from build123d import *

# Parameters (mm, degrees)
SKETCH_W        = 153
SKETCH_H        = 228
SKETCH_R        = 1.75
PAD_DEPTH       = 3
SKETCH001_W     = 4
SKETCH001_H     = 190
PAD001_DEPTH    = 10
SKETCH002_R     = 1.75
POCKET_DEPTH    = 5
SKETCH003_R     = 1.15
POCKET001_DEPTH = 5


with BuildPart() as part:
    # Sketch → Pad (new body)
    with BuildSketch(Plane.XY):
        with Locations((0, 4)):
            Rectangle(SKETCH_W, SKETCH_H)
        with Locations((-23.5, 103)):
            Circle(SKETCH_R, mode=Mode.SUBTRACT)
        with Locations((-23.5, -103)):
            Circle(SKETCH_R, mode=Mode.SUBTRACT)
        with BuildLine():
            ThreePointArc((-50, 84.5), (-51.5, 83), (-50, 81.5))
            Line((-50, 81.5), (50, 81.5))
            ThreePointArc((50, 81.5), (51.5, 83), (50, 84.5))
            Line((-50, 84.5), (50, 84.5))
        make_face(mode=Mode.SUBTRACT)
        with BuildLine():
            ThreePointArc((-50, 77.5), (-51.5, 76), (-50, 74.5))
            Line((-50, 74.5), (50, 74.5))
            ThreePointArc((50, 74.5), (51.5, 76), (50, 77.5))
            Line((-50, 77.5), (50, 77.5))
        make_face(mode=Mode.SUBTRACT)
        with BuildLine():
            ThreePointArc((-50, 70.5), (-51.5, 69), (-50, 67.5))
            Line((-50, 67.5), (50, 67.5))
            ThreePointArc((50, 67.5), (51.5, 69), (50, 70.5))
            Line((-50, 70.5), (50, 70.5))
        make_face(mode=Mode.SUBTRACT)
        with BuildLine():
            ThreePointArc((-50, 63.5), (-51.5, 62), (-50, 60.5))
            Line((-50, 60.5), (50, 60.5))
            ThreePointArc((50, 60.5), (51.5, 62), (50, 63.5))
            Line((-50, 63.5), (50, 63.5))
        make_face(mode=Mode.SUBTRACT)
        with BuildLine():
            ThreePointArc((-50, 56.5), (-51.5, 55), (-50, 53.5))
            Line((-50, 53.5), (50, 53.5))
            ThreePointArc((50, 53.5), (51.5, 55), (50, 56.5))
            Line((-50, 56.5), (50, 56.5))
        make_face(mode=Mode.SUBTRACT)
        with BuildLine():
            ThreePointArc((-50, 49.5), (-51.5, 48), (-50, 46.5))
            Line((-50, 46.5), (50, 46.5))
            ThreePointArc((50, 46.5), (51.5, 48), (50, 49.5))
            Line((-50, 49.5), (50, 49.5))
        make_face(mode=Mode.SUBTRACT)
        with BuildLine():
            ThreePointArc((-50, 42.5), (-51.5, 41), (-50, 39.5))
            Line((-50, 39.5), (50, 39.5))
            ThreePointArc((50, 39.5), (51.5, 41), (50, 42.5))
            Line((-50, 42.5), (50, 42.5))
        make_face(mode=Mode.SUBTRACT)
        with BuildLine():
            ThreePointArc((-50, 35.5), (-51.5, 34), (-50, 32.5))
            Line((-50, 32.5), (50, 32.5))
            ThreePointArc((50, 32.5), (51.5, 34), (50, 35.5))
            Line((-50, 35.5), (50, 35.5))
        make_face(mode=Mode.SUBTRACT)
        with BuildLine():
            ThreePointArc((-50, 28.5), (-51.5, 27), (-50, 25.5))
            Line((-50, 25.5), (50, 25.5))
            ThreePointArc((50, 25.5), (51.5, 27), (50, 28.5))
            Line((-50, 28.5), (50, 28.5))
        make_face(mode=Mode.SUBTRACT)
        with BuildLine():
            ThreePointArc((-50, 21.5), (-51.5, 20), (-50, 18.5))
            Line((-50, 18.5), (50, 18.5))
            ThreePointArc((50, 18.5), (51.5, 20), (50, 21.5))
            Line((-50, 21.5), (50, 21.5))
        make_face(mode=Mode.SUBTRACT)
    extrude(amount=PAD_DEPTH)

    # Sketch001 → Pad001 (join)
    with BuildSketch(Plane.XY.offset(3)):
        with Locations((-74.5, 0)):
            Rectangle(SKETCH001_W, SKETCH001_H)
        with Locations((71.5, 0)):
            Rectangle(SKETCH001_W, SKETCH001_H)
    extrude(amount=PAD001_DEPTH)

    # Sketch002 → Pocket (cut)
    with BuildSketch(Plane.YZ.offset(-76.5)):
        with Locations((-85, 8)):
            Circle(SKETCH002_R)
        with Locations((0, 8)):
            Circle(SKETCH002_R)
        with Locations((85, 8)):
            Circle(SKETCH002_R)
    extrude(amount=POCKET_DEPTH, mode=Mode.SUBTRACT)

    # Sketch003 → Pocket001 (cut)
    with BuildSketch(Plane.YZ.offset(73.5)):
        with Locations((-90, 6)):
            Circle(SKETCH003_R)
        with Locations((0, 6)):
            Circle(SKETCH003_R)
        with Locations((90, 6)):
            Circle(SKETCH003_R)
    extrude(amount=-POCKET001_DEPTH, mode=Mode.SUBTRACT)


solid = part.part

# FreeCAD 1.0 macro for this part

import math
import FreeCAD as App
import Part
import Sketcher

doc = App.newDocument("Part")
params = doc.addObject("Spreadsheet::Sheet", "Params")
for row, (alias, value) in enumerate([
    ("sketch1_diameter", "3.5 mm"),
    ("sketch1_radius", "1.5 mm"),
    ("sketch1_width", "153 mm"),
    ("sketch1_width2", "100 mm"),
    ("sketch1_height", "228 mm"),
    ("pad1_length", "3 mm"),
    ("sketch2_width", "4 mm"),
    ("sketch2_height", "190 mm"),
    ("pad2_length", "10 mm"),
    ("sketch3_diameter", "3.5 mm"),
    ("pocket1_length", "5 mm"),
    ("sketch4_diameter", "2.3 mm"),
    ("pocket2_length", "5 mm"),
], start=1):
    params.set(f"A{row}", alias)
    params.set(f"B{row}", "=" + value)
    params.setAlias(f"B{row}", alias)

body = doc.addObject("PartDesign::Body", "Body")

# Sketch on XY plane
sketch1 = doc.addObject("Sketcher::SketchObject", "Sketch")
body.addObject(sketch1)
sketch1.AttachmentSupport = (doc.XY_Plane, [""])
sketch1.MapMode = "FlatFace"
sketch1.addGeometry(Part.LineSegment(App.Vector(-76.5, 118, 0), App.Vector(-76.5, -110, 0)), False)
sketch1.addGeometry(Part.LineSegment(App.Vector(-76.5, -110, 0), App.Vector(76.5, -110, 0)), False)
sketch1.addGeometry(Part.LineSegment(App.Vector(76.5, -110, 0), App.Vector(76.5, 118, 0)), False)
sketch1.addGeometry(Part.LineSegment(App.Vector(76.5, 118, 0), App.Vector(-76.5, 118, 0)), False)
sketch1.addGeometry(Part.Circle(App.Vector(-23.5, -103, 0), App.Vector(0, 0, 1), 1.8), False)
sketch1.addGeometry(Part.ArcOfCircle(Part.Circle(App.Vector(-50, 20, 0), App.Vector(0, 0, 1), 1.5), math.radians(90), math.radians(270)), False)
sketch1.addGeometry(Part.LineSegment(App.Vector(-50, 21.5, 0), App.Vector(50, 21.5, 0)), False)
sketch1.addGeometry(Part.ArcOfCircle(Part.Circle(App.Vector(50, 20, 0), App.Vector(0, 0, 1), 1.5), math.radians(-90), math.radians(90)), False)
sketch1.addGeometry(Part.LineSegment(App.Vector(50, 18.5, 0), App.Vector(-50, 18.5, 0)), False)
sketch1.addGeometry(Part.ArcOfCircle(Part.Circle(App.Vector(-50, 27, 0), App.Vector(0, 0, 1), 1.5), math.radians(90), math.radians(270)), False)
sketch1.addGeometry(Part.LineSegment(App.Vector(-50, 28.5, 0), App.Vector(50, 28.5, 0)), False)
sketch1.addGeometry(Part.ArcOfCircle(Part.Circle(App.Vector(50, 27, 0), App.Vector(0, 0, 1), 1.5), math.radians(-90), math.radians(90)), False)
sketch1.addGeometry(Part.LineSegment(App.Vector(50, 25.5, 0), App.Vector(-50, 25.5, 0)), False)
sketch1.addGeometry(Part.ArcOfCircle(Part.Circle(App.Vector(-50, 34, 0), App.Vector(0, 0, 1), 1.5), math.radians(90), math.radians(270)), False)
sketch1.addGeometry(Part.LineSegment(App.Vector(-50, 35.5, 0), App.Vector(50, 35.5, 0)), False)
sketch1.addGeometry(Part.ArcOfCircle(Part.Circle(App.Vector(50, 34, 0), App.Vector(0, 0, 1), 1.5), math.radians(-90), math.radians(90)), False)
sketch1.addGeometry(Part.LineSegment(App.Vector(50, 32.5, 0), App.Vector(-50, 32.5, 0)), False)
sketch1.addGeometry(Part.ArcOfCircle(Part.Circle(App.Vector(-50, 41, 0), App.Vector(0, 0, 1), 1.5), math.radians(90), math.radians(270)), False)
sketch1.addGeometry(Part.LineSegment(App.Vector(-50, 42.5, 0), App.Vector(50, 42.5, 0)), False)
sketch1.addGeometry(Part.ArcOfCircle(Part.Circle(App.Vector(50, 41, 0), App.Vector(0, 0, 1), 1.5), math.radians(-90), math.radians(90)), False)
sketch1.addGeometry(Part.LineSegment(App.Vector(50, 39.5, 0), App.Vector(-50, 39.5, 0)), False)
sketch1.addGeometry(Part.ArcOfCircle(Part.Circle(App.Vector(-50, 48, 0), App.Vector(0, 0, 1), 1.5), math.radians(90), math.radians(270)), False)
sketch1.addGeometry(Part.LineSegment(App.Vector(-50, 49.5, 0), App.Vector(50, 49.5, 0)), False)
sketch1.addGeometry(Part.ArcOfCircle(Part.Circle(App.Vector(50, 48, 0), App.Vector(0, 0, 1), 1.5), math.radians(-90), math.radians(90)), False)
sketch1.addGeometry(Part.LineSegment(App.Vector(50, 46.5, 0), App.Vector(-50, 46.5, 0)), False)
sketch1.addGeometry(Part.ArcOfCircle(Part.Circle(App.Vector(-50, 55, 0), App.Vector(0, 0, 1), 1.5), math.radians(90), math.radians(270)), False)
sketch1.addGeometry(Part.LineSegment(App.Vector(-50, 56.5, 0), App.Vector(50, 56.5, 0)), False)
sketch1.addGeometry(Part.ArcOfCircle(Part.Circle(App.Vector(50, 55, 0), App.Vector(0, 0, 1), 1.5), math.radians(-90), math.radians(90)), False)
sketch1.addGeometry(Part.LineSegment(App.Vector(50, 53.5, 0), App.Vector(-50, 53.5, 0)), False)
sketch1.addGeometry(Part.ArcOfCircle(Part.Circle(App.Vector(-50, 62, 0), App.Vector(0, 0, 1), 1.5), math.radians(90), math.radians(270)), False)
sketch1.addGeometry(Part.LineSegment(App.Vector(-50, 63.5, 0), App.Vector(50, 63.5, 0)), False)
sketch1.addGeometry(Part.ArcOfCircle(Part.Circle(App.Vector(50, 62, 0), App.Vector(0, 0, 1), 1.5), math.radians(-90), math.radians(90)), False)
sketch1.addGeometry(Part.LineSegment(App.Vector(50, 60.5, 0), App.Vector(-50, 60.5, 0)), False)
sketch1.addGeometry(Part.ArcOfCircle(Part.Circle(App.Vector(-50, 69, 0), App.Vector(0, 0, 1), 1.5), math.radians(90), math.radians(270)), False)
sketch1.addGeometry(Part.LineSegment(App.Vector(-50, 70.5, 0), App.Vector(50, 70.5, 0)), False)
sketch1.addGeometry(Part.ArcOfCircle(Part.Circle(App.Vector(50, 69, 0), App.Vector(0, 0, 1), 1.5), math.radians(-90), math.radians(90)), False)
sketch1.addGeometry(Part.LineSegment(App.Vector(50, 67.5, 0), App.Vector(-50, 67.5, 0)), False)
sketch1.addGeometry(Part.ArcOfCircle(Part.Circle(App.Vector(-50, 76, 0), App.Vector(0, 0, 1), 1.5), math.radians(90), math.radians(270)), False)
sketch1.addGeometry(Part.LineSegment(App.Vector(-50, 77.5, 0), App.Vector(50, 77.5, 0)), False)
sketch1.addGeometry(Part.ArcOfCircle(Part.Circle(App.Vector(50, 76, 0), App.Vector(0, 0, 1), 1.5), math.radians(-90), math.radians(90)), False)
sketch1.addGeometry(Part.LineSegment(App.Vector(50, 74.5, 0), App.Vector(-50, 74.5, 0)), False)
sketch1.addGeometry(Part.Circle(App.Vector(-23.5, 103, 0), App.Vector(0, 0, 1), 1.8), False)
sketch1.addGeometry(Part.ArcOfCircle(Part.Circle(App.Vector(-50, 83, 0), App.Vector(0, 0, 1), 1.5), math.radians(90), math.radians(270)), False)
sketch1.addGeometry(Part.LineSegment(App.Vector(-50, 84.5, 0), App.Vector(50, 84.5, 0)), False)
sketch1.addGeometry(Part.ArcOfCircle(Part.Circle(App.Vector(50, 83, 0), App.Vector(0, 0, 1), 1.5), math.radians(-90), math.radians(90)), False)
sketch1.addGeometry(Part.LineSegment(App.Vector(50, 81.5, 0), App.Vector(-50, 81.5, 0)), False)
sketch1.addConstraint(Sketcher.Constraint("Coincident", 0, 2, 1, 1))
sketch1.addConstraint(Sketcher.Constraint("Coincident", 1, 2, 2, 1))
sketch1.addConstraint(Sketcher.Constraint("Coincident", 2, 2, 3, 1))
sketch1.addConstraint(Sketcher.Constraint("Coincident", 3, 2, 0, 1))
sketch1.addConstraint(Sketcher.Constraint("Tangent", 5, 1, 6, 1))
sketch1.addConstraint(Sketcher.Constraint("Tangent", 6, 2, 7, 2))
sketch1.addConstraint(Sketcher.Constraint("Tangent", 7, 1, 8, 1))
sketch1.addConstraint(Sketcher.Constraint("Tangent", 8, 2, 5, 2))
sketch1.addConstraint(Sketcher.Constraint("Tangent", 9, 1, 10, 1))
sketch1.addConstraint(Sketcher.Constraint("Tangent", 10, 2, 11, 2))
sketch1.addConstraint(Sketcher.Constraint("Tangent", 11, 1, 12, 1))
sketch1.addConstraint(Sketcher.Constraint("Tangent", 12, 2, 9, 2))
sketch1.addConstraint(Sketcher.Constraint("Tangent", 13, 1, 14, 1))
sketch1.addConstraint(Sketcher.Constraint("Tangent", 14, 2, 15, 2))
sketch1.addConstraint(Sketcher.Constraint("Tangent", 15, 1, 16, 1))
sketch1.addConstraint(Sketcher.Constraint("Tangent", 16, 2, 13, 2))
sketch1.addConstraint(Sketcher.Constraint("Tangent", 17, 1, 18, 1))
sketch1.addConstraint(Sketcher.Constraint("Tangent", 18, 2, 19, 2))
sketch1.addConstraint(Sketcher.Constraint("Tangent", 19, 1, 20, 1))
sketch1.addConstraint(Sketcher.Constraint("Tangent", 20, 2, 17, 2))
sketch1.addConstraint(Sketcher.Constraint("Tangent", 21, 1, 22, 1))
sketch1.addConstraint(Sketcher.Constraint("Tangent", 22, 2, 23, 2))
sketch1.addConstraint(Sketcher.Constraint("Tangent", 23, 1, 24, 1))
sketch1.addConstraint(Sketcher.Constraint("Tangent", 24, 2, 21, 2))
sketch1.addConstraint(Sketcher.Constraint("Tangent", 25, 1, 26, 1))
sketch1.addConstraint(Sketcher.Constraint("Tangent", 26, 2, 27, 2))
sketch1.addConstraint(Sketcher.Constraint("Tangent", 27, 1, 28, 1))
sketch1.addConstraint(Sketcher.Constraint("Tangent", 28, 2, 25, 2))
sketch1.addConstraint(Sketcher.Constraint("Tangent", 29, 1, 30, 1))
sketch1.addConstraint(Sketcher.Constraint("Tangent", 30, 2, 31, 2))
sketch1.addConstraint(Sketcher.Constraint("Tangent", 31, 1, 32, 1))
sketch1.addConstraint(Sketcher.Constraint("Tangent", 32, 2, 29, 2))
sketch1.addConstraint(Sketcher.Constraint("Tangent", 33, 1, 34, 1))
sketch1.addConstraint(Sketcher.Constraint("Tangent", 34, 2, 35, 2))
sketch1.addConstraint(Sketcher.Constraint("Tangent", 35, 1, 36, 1))
sketch1.addConstraint(Sketcher.Constraint("Tangent", 36, 2, 33, 2))
sketch1.addConstraint(Sketcher.Constraint("Tangent", 37, 1, 38, 1))
sketch1.addConstraint(Sketcher.Constraint("Tangent", 38, 2, 39, 2))
sketch1.addConstraint(Sketcher.Constraint("Tangent", 39, 1, 40, 1))
sketch1.addConstraint(Sketcher.Constraint("Tangent", 40, 2, 37, 2))
sketch1.addConstraint(Sketcher.Constraint("Tangent", 42, 1, 43, 1))
sketch1.addConstraint(Sketcher.Constraint("Tangent", 43, 2, 44, 2))
sketch1.addConstraint(Sketcher.Constraint("Tangent", 44, 1, 45, 1))
sketch1.addConstraint(Sketcher.Constraint("Tangent", 45, 2, 42, 2))
sketch1.addConstraint(Sketcher.Constraint("Vertical", 0))
sketch1.addConstraint(Sketcher.Constraint("Horizontal", 1))
sketch1.addConstraint(Sketcher.Constraint("Vertical", 2))
sketch1.addConstraint(Sketcher.Constraint("Horizontal", 3))
sketch1.addConstraint(Sketcher.Constraint("Horizontal", 6))
sketch1.addConstraint(Sketcher.Constraint("Horizontal", 8))
sketch1.addConstraint(Sketcher.Constraint("Horizontal", 10))
sketch1.addConstraint(Sketcher.Constraint("Horizontal", 12))
sketch1.addConstraint(Sketcher.Constraint("Horizontal", 14))
sketch1.addConstraint(Sketcher.Constraint("Horizontal", 16))
sketch1.addConstraint(Sketcher.Constraint("Horizontal", 18))
sketch1.addConstraint(Sketcher.Constraint("Horizontal", 20))
sketch1.addConstraint(Sketcher.Constraint("Horizontal", 22))
sketch1.addConstraint(Sketcher.Constraint("Horizontal", 24))
sketch1.addConstraint(Sketcher.Constraint("Horizontal", 26))
sketch1.addConstraint(Sketcher.Constraint("Horizontal", 28))
sketch1.addConstraint(Sketcher.Constraint("Horizontal", 30))
sketch1.addConstraint(Sketcher.Constraint("Horizontal", 32))
sketch1.addConstraint(Sketcher.Constraint("Horizontal", 34))
sketch1.addConstraint(Sketcher.Constraint("Horizontal", 36))
sketch1.addConstraint(Sketcher.Constraint("Horizontal", 38))
sketch1.addConstraint(Sketcher.Constraint("Horizontal", 40))
sketch1.addConstraint(Sketcher.Constraint("Horizontal", 43))
sketch1.addConstraint(Sketcher.Constraint("Horizontal", 45))
sketch1.addConstraint(Sketcher.Constraint("Equal", 7, 9))
sketch1.addConstraint(Sketcher.Constraint("Equal", 11, 13))
sketch1.addConstraint(Sketcher.Constraint("Equal", 15, 17))
sketch1.addConstraint(Sketcher.Constraint("Equal", 19, 21))
sketch1.addConstraint(Sketcher.Constraint("Equal", 23, 25))
sketch1.addConstraint(Sketcher.Constraint("Equal", 27, 29))
sketch1.addConstraint(Sketcher.Constraint("Equal", 31, 33))
sketch1.addConstraint(Sketcher.Constraint("Equal", 35, 37))
sketch1.addConstraint(Sketcher.Constraint("Equal", 4, 41))
sketch1.addConstraint(Sketcher.Constraint("Equal", 39, 42))
sketch1.addConstraint(Sketcher.Constraint("Symmetric", 4, 3, 41, 3, -1))
sketch1.addConstraint(Sketcher.Constraint("Vertical", 5, 3, 9, 3))
sketch1.addConstraint(Sketcher.Constraint("Vertical", 7, 3, 11, 3))
sketch1.addConstraint(Sketcher.Constraint("Vertical", 9, 3, 13, 3))
sketch1.addConstraint(Sketcher.Constraint("Vertical", 11, 3, 15, 3))
sketch1.addConstraint(Sketcher.Constraint("Vertical", 13, 3, 17, 3))
sketch1.addConstraint(Sketcher.Constraint("Vertical", 15, 3, 19, 3))
sketch1.addConstraint(Sketcher.Constraint("Vertical", 17, 3, 21, 3))
sketch1.addConstraint(Sketcher.Constraint("Vertical", 19, 3, 23, 3))
sketch1.addConstraint(Sketcher.Constraint("Vertical", 21, 3, 25, 3))
sketch1.addConstraint(Sketcher.Constraint("Vertical", 23, 3, 27, 3))
sketch1.addConstraint(Sketcher.Constraint("Vertical", 25, 3, 29, 3))
sketch1.addConstraint(Sketcher.Constraint("Vertical", 27, 3, 31, 3))
sketch1.addConstraint(Sketcher.Constraint("Vertical", 29, 3, 33, 3))
sketch1.addConstraint(Sketcher.Constraint("Vertical", 31, 3, 35, 3))
sketch1.addConstraint(Sketcher.Constraint("Vertical", 33, 3, 37, 3))
sketch1.addConstraint(Sketcher.Constraint("Vertical", 35, 3, 39, 3))
sketch1.addConstraint(Sketcher.Constraint("Vertical", 37, 3, 42, 3))
sketch1.addConstraint(Sketcher.Constraint("Vertical", 39, 3, 44, 3))
sketch1.addConstraint(Sketcher.Constraint("Diameter", 4, 3.5))
sketch1.addConstraint(Sketcher.Constraint("Radius", 5, 1.5))
sketch1.addConstraint(Sketcher.Constraint("DistanceX", 1, 1, 1, 2, 153.0))
sketch1.addConstraint(Sketcher.Constraint("DistanceX", 6, 1, 6, 2, 100.0))
sketch1.addConstraint(Sketcher.Constraint("DistanceY", 0, 2, 0, 1, 228.0))
sketch1.addConstraint(Sketcher.Constraint("DistanceY", 4, 3, -1, 1, 103.0))
sketch1.addConstraint(Sketcher.Constraint("DistanceX", 5, 3, -1, 1, 50.0))
sketch1.addConstraint(Sketcher.Constraint("DistanceY", -1, 1, 5, 3, 20.0))
sketch1.addConstraint(Sketcher.Constraint("DistanceY", -1, 1, 9, 3, 27.0))
sketch1.addConstraint(Sketcher.Constraint("DistanceY", -1, 1, 13, 3, 34.0))
sketch1.addConstraint(Sketcher.Constraint("DistanceY", -1, 1, 17, 3, 41.0))
sketch1.addConstraint(Sketcher.Constraint("DistanceY", -1, 1, 21, 3, 48.0))
sketch1.addConstraint(Sketcher.Constraint("DistanceY", -1, 1, 25, 3, 55.0))
sketch1.addConstraint(Sketcher.Constraint("DistanceY", -1, 1, 29, 3, 62.0))
sketch1.addConstraint(Sketcher.Constraint("DistanceY", -1, 1, 33, 3, 69.0))
sketch1.addConstraint(Sketcher.Constraint("DistanceY", -1, 1, 37, 3, 76.0))
sketch1.addConstraint(Sketcher.Constraint("DistanceY", -1, 1, 42, 3, 83.0))
sketch1.addConstraint(Sketcher.Constraint("DistanceY", 0, 2, -1, 1, 110.0))
sketch1.addConstraint(Sketcher.Constraint("DistanceX", 4, 3, -1, 1, 23.5))
sketch1.addConstraint(Sketcher.Constraint("DistanceX", 0, 2, -1, 1, 76.5))
sketch1.setExpression("Constraints[97]", "Params.sketch1_diameter")
sketch1.setExpression("Constraints[98]", "Params.sketch1_radius")
sketch1.setExpression("Constraints[99]", "Params.sketch1_width")
sketch1.setExpression("Constraints[100]", "Params.sketch1_width2")
sketch1.setExpression("Constraints[101]", "Params.sketch1_height")
pad1 = doc.addObject("PartDesign::Pad", "Pad")
body.addObject(pad1)
pad1.Profile = sketch1
pad1.setExpression("Length", "Params.pad1_length")

# Sketch on XY plane
sketch2 = doc.addObject("Sketcher::SketchObject", "Sketch001")
body.addObject(sketch2)
sketch2.AttachmentSupport = (doc.XY_Plane, [""])
sketch2.MapMode = "FlatFace"
sketch2.AttachmentOffset = App.Placement(App.Vector(0, 0, 3), App.Rotation())
sketch2.addGeometry(Part.LineSegment(App.Vector(-76.5, 95, 0), App.Vector(-76.5, -95, 0)), False)
sketch2.addGeometry(Part.LineSegment(App.Vector(-76.5, -95, 0), App.Vector(-72.5, -95, 0)), False)
sketch2.addGeometry(Part.LineSegment(App.Vector(-72.5, -95, 0), App.Vector(-72.5, 95, 0)), False)
sketch2.addGeometry(Part.LineSegment(App.Vector(-72.5, 95, 0), App.Vector(-76.5, 95, 0)), False)
sketch2.addGeometry(Part.LineSegment(App.Vector(69.5, 95, 0), App.Vector(69.5, -95, 0)), False)
sketch2.addGeometry(Part.LineSegment(App.Vector(69.5, -95, 0), App.Vector(73.5, -95, 0)), False)
sketch2.addGeometry(Part.LineSegment(App.Vector(73.5, -95, 0), App.Vector(73.5, 95, 0)), False)
sketch2.addGeometry(Part.LineSegment(App.Vector(73.5, 95, 0), App.Vector(69.5, 95, 0)), False)
sketch2.addConstraint(Sketcher.Constraint("Coincident", 0, 2, 1, 1))
sketch2.addConstraint(Sketcher.Constraint("Coincident", 1, 2, 2, 1))
sketch2.addConstraint(Sketcher.Constraint("Coincident", 2, 2, 3, 1))
sketch2.addConstraint(Sketcher.Constraint("Coincident", 3, 2, 0, 1))
sketch2.addConstraint(Sketcher.Constraint("Coincident", 4, 2, 5, 1))
sketch2.addConstraint(Sketcher.Constraint("Coincident", 5, 2, 6, 1))
sketch2.addConstraint(Sketcher.Constraint("Coincident", 6, 2, 7, 1))
sketch2.addConstraint(Sketcher.Constraint("Coincident", 7, 2, 4, 1))
sketch2.addConstraint(Sketcher.Constraint("Vertical", 0))
sketch2.addConstraint(Sketcher.Constraint("Horizontal", 1))
sketch2.addConstraint(Sketcher.Constraint("Vertical", 2))
sketch2.addConstraint(Sketcher.Constraint("Horizontal", 3))
sketch2.addConstraint(Sketcher.Constraint("Vertical", 4))
sketch2.addConstraint(Sketcher.Constraint("Horizontal", 5))
sketch2.addConstraint(Sketcher.Constraint("Vertical", 6))
sketch2.addConstraint(Sketcher.Constraint("Horizontal", 7))
sketch2.addConstraint(Sketcher.Constraint("Horizontal", 1, 2, 4, 2))
sketch2.addConstraint(Sketcher.Constraint("Horizontal", 3, 2, 6, 2))
sketch2.addConstraint(Sketcher.Constraint("Equal", 3, 5))
sketch2.addConstraint(Sketcher.Constraint("DistanceX", 1, 1, 1, 2, 4.0))
sketch2.addConstraint(Sketcher.Constraint("DistanceY", 0, 2, 0, 1, 190.0))
sketch2.addConstraint(Sketcher.Constraint("DistanceY", 0, 2, -1, 1, 95.0))
sketch2.addConstraint(Sketcher.Constraint("DistanceX", 1, 2, 4, 2, 142.0))
sketch2.addConstraint(Sketcher.Constraint("DistanceX", 0, 2, -1, 1, 76.5))
sketch2.setExpression("Constraints[19]", "Params.sketch2_width")
sketch2.setExpression("Constraints[20]", "Params.sketch2_height")
pad2 = doc.addObject("PartDesign::Pad", "Pad001")
body.addObject(pad2)
pad2.Profile = sketch2
pad2.setExpression("Length", "Params.pad2_length")

# Sketch on YZ plane
sketch3 = doc.addObject("Sketcher::SketchObject", "Sketch002")
body.addObject(sketch3)
sketch3.AttachmentSupport = (doc.YZ_Plane, [""])
sketch3.MapMode = "FlatFace"
sketch3.AttachmentOffset = App.Placement(App.Vector(0, 0, -76.5), App.Rotation())
sketch3.addGeometry(Part.Circle(App.Vector(-85, 8, 0), App.Vector(0, 0, 1), 1.8), False)
sketch3.addGeometry(Part.Circle(App.Vector(0, 8, 0), App.Vector(0, 0, 1), 1.8), False)
sketch3.addGeometry(Part.Circle(App.Vector(85, 8, 0), App.Vector(0, 0, 1), 1.8), False)
sketch3.addConstraint(Sketcher.Constraint("Equal", 0, 1))
sketch3.addConstraint(Sketcher.Constraint("Equal", 1, 2))
sketch3.addConstraint(Sketcher.Constraint("Symmetric", 0, 3, 2, 3, -2))
sketch3.addConstraint(Sketcher.Constraint("PointOnObject", 1, 3, -2))
sketch3.addConstraint(Sketcher.Constraint("Horizontal", 0, 3, 1, 3))
sketch3.addConstraint(Sketcher.Constraint("Diameter", 0, 3.5))
sketch3.addConstraint(Sketcher.Constraint("DistanceX", 0, 3, -1, 1, 85.0))
sketch3.addConstraint(Sketcher.Constraint("DistanceY", -1, 1, 0, 3, 8.0))
sketch3.setExpression("Constraints[5]", "Params.sketch3_diameter")
pocket1 = doc.addObject("PartDesign::Pocket", "Pocket")
body.addObject(pocket1)
pocket1.Profile = sketch3
pocket1.setExpression("Length", "Params.pocket1_length")
pocket1.Reversed = True

# Sketch on YZ plane
sketch4 = doc.addObject("Sketcher::SketchObject", "Sketch003")
body.addObject(sketch4)
sketch4.AttachmentSupport = (doc.YZ_Plane, [""])
sketch4.MapMode = "FlatFace"
sketch4.AttachmentOffset = App.Placement(App.Vector(0, 0, 73.5), App.Rotation())
sketch4.addGeometry(Part.Circle(App.Vector(-90, 6, 0), App.Vector(0, 0, 1), 1.1), False)
sketch4.addGeometry(Part.Circle(App.Vector(0, 6, 0), App.Vector(0, 0, 1), 1.1), False)
sketch4.addGeometry(Part.Circle(App.Vector(90, 6, 0), App.Vector(0, 0, 1), 1.1), False)
sketch4.addConstraint(Sketcher.Constraint("Equal", 0, 1))
sketch4.addConstraint(Sketcher.Constraint("Equal", 1, 2))
sketch4.addConstraint(Sketcher.Constraint("Symmetric", 0, 3, 2, 3, -2))
sketch4.addConstraint(Sketcher.Constraint("PointOnObject", 1, 3, -2))
sketch4.addConstraint(Sketcher.Constraint("Horizontal", 0, 3, 1, 3))
sketch4.addConstraint(Sketcher.Constraint("Diameter", 0, 2.3))
sketch4.addConstraint(Sketcher.Constraint("DistanceX", 0, 3, -1, 1, 90.0))
sketch4.addConstraint(Sketcher.Constraint("DistanceY", -1, 1, 0, 3, 6.0))
sketch4.setExpression("Constraints[5]", "Params.sketch4_diameter")
pocket2 = doc.addObject("PartDesign::Pocket", "Pocket001")
body.addObject(pocket2)
pocket2.Profile = sketch4
pocket2.setExpression("Length", "Params.pocket2_length")

doc.recompute()
